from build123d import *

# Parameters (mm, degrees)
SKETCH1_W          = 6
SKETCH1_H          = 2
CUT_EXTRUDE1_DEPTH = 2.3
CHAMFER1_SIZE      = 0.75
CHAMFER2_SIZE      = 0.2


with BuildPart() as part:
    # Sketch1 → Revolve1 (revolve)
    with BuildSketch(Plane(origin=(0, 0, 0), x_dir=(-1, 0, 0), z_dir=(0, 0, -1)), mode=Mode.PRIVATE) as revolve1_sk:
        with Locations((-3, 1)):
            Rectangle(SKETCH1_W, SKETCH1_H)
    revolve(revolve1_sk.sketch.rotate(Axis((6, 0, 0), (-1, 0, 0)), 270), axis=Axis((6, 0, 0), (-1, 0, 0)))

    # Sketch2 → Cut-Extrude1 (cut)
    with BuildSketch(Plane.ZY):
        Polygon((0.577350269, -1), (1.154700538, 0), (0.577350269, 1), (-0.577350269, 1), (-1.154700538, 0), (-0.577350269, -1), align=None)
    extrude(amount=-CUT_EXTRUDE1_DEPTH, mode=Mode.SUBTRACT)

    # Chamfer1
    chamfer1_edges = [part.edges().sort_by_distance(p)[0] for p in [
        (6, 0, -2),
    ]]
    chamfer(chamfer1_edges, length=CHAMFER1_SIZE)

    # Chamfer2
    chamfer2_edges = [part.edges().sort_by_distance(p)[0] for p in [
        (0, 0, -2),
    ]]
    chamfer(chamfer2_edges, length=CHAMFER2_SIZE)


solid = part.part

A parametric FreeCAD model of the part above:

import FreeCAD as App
import Part
import Sketcher

V = App.Vector
Q = App.Units.Quantity


def edges_at(feature, points):
    """Names of the edges that pass closest to the given points."""
    edges = feature.Shape.Edges
    near = lambda p: min(range(len(edges)), key=lambda i: edges[i].distToShape(Part.Vertex(*p))[0])
    return sorted({f"Edge{near(p) + 1}" for p in points})

doc = App.newDocument("Part")
body = doc.addObject("PartDesign::Body", "Body")

sketch1 = body.newObject("Sketcher::SketchObject", "Sketch")
sketch1.AttachmentSupport = (doc.getObject("XY_Plane"), [""])
sketch1.MapMode = "FlatFace"
sketch1.addGeometry(Part.LineSegment(V(6, 2, 0), V(6, 0, 0)), False)
sketch1.addGeometry(Part.LineSegment(V(6, 0, 0), V(0, 0, 0)), False)
sketch1.addGeometry(Part.LineSegment(V(0, 0, 0), V(0, 2, 0)), False)
sketch1.addGeometry(Part.LineSegment(V(0, 2, 0), V(6, 2, 0)), False)
sketch1.addConstraint(Sketcher.Constraint("Coincident", 0, 2, 1, 1))
sketch1.addConstraint(Sketcher.Constraint("Coincident", 1, 2, 2, 1))
sketch1.addConstraint(Sketcher.Constraint("Coincident", 2, 2, 3, 1))
sketch1.addConstraint(Sketcher.Constraint("Coincident", 3, 2, 0, 1))
sketch1.addConstraint(Sketcher.Constraint("Vertical", 0))
sketch1.addConstraint(Sketcher.Constraint("Horizontal", 1))
sketch1.addConstraint(Sketcher.Constraint("Vertical", 2))
sketch1.addConstraint(Sketcher.Constraint("Horizontal", 3))
sketch1.addConstraint(Sketcher.Constraint("Coincident", 1, 2, -1, 1))
sketch1.addConstraint(Sketcher.Constraint("DistanceX", 1, 2, 1, 1, Q("6 mm")))
sketch1.addConstraint(Sketcher.Constraint("DistanceY", 0, 2, 0, 1, Q("2 mm")))
revolution = body.newObject("PartDesign::Revolution", "Revolution")
revolution.Profile = sketch1
revolution.ReferenceAxis = (sketch1, ["H_Axis"])
revolution.Angle = 360

sketch2 = body.newObject("Sketcher::SketchObject", "Sketch001")
sketch2.AttachmentSupport = (doc.getObject("YZ_Plane"), [""])
sketch2.MapMode = "FlatFace"
sketch2.addGeometry(Part.LineSegment(V(-1, 0.6, 0), V(0, 1.2, 0)), False)
sketch2.addGeometry(Part.LineSegment(V(0, 1.2, 0), V(1, 0.6, 0)), False)
sketch2.addGeometry(Part.LineSegment(V(1, 0.6, 0), V(1, -0.6, 0)), False)
sketch2.addGeometry(Part.LineSegment(V(1, -0.6, 0), V(0, -1.2, 0)), False)
sketch2.addGeometry(Part.LineSegment(V(0, -1.2, 0), V(-1, -0.6, 0)), False)
sketch2.addGeometry(Part.LineSegment(V(-1, -0.6, 0), V(-1, 0.6, 0)), False)
sketch2.addConstraint(Sketcher.Constraint("Coincident", 0, 2, 1, 1))
sketch2.addConstraint(Sketcher.Constraint("Coincident", 1, 2, 2, 1))
sketch2.addConstraint(Sketcher.Constraint("Coincident", 2, 2, 3, 1))
sketch2.addConstraint(Sketcher.Constraint("Coincident", 3, 2, 4, 1))
sketch2.addConstraint(Sketcher.Constraint("Coincident", 4, 2, 5, 1))
sketch2.addConstraint(Sketcher.Constraint("Coincident", 5, 2, 0, 1))
sketch2.addConstraint(Sketcher.Constraint("Vertical", 2))
sketch2.addConstraint(Sketcher.Constraint("Vertical", 5))
sketch2.addConstraint(Sketcher.Constraint("Symmetric", 0, 2, 3, 2, -1, 1))
sketch2.addConstraint(Sketcher.Constraint("Symmetric", 1, 2, 4, 2, -1, 1))
sketch2.addConstraint(Sketcher.Constraint("PointOnObject", 0, 2, -2))
sketch2.addConstraint(Sketcher.Constraint("Parallel", 0, 3))
sketch2.addConstraint(Sketcher.Constraint("Horizontal", 2, 2, 4, 2))
sketch2.addConstraint(Sketcher.Constraint("Angle", 0, Q("30 deg")))
sketch2.addConstraint(Sketcher.Constraint("DistanceX", -1, 1, 1, 2, Q("1 mm")))
sketch2.addConstraint(Sketcher.Constraint("DistanceY", 2, 2, 2, 1, Q("1.154701 mm")))
pocket1 = body.newObject("PartDesign::Pocket", "Pocket")
pocket1.Profile = sketch2
pocket1.Length = 2.3
pocket1.Reversed = True
doc.recompute()

chamfer = body.newObject("PartDesign::Chamfer", "Chamfer")
chamfer.Base = (pocket1, edges_at(pocket1, [(6, 0, -2)]))
chamfer.Size = 0.75
doc.recompute()

chamfer2 = body.newObject("PartDesign::Chamfer", "Chamfer001")
chamfer2.Base = (chamfer, edges_at(chamfer, [(0, 0, -2)]))
chamfer2.Size = 0.2

doc.recompute()
